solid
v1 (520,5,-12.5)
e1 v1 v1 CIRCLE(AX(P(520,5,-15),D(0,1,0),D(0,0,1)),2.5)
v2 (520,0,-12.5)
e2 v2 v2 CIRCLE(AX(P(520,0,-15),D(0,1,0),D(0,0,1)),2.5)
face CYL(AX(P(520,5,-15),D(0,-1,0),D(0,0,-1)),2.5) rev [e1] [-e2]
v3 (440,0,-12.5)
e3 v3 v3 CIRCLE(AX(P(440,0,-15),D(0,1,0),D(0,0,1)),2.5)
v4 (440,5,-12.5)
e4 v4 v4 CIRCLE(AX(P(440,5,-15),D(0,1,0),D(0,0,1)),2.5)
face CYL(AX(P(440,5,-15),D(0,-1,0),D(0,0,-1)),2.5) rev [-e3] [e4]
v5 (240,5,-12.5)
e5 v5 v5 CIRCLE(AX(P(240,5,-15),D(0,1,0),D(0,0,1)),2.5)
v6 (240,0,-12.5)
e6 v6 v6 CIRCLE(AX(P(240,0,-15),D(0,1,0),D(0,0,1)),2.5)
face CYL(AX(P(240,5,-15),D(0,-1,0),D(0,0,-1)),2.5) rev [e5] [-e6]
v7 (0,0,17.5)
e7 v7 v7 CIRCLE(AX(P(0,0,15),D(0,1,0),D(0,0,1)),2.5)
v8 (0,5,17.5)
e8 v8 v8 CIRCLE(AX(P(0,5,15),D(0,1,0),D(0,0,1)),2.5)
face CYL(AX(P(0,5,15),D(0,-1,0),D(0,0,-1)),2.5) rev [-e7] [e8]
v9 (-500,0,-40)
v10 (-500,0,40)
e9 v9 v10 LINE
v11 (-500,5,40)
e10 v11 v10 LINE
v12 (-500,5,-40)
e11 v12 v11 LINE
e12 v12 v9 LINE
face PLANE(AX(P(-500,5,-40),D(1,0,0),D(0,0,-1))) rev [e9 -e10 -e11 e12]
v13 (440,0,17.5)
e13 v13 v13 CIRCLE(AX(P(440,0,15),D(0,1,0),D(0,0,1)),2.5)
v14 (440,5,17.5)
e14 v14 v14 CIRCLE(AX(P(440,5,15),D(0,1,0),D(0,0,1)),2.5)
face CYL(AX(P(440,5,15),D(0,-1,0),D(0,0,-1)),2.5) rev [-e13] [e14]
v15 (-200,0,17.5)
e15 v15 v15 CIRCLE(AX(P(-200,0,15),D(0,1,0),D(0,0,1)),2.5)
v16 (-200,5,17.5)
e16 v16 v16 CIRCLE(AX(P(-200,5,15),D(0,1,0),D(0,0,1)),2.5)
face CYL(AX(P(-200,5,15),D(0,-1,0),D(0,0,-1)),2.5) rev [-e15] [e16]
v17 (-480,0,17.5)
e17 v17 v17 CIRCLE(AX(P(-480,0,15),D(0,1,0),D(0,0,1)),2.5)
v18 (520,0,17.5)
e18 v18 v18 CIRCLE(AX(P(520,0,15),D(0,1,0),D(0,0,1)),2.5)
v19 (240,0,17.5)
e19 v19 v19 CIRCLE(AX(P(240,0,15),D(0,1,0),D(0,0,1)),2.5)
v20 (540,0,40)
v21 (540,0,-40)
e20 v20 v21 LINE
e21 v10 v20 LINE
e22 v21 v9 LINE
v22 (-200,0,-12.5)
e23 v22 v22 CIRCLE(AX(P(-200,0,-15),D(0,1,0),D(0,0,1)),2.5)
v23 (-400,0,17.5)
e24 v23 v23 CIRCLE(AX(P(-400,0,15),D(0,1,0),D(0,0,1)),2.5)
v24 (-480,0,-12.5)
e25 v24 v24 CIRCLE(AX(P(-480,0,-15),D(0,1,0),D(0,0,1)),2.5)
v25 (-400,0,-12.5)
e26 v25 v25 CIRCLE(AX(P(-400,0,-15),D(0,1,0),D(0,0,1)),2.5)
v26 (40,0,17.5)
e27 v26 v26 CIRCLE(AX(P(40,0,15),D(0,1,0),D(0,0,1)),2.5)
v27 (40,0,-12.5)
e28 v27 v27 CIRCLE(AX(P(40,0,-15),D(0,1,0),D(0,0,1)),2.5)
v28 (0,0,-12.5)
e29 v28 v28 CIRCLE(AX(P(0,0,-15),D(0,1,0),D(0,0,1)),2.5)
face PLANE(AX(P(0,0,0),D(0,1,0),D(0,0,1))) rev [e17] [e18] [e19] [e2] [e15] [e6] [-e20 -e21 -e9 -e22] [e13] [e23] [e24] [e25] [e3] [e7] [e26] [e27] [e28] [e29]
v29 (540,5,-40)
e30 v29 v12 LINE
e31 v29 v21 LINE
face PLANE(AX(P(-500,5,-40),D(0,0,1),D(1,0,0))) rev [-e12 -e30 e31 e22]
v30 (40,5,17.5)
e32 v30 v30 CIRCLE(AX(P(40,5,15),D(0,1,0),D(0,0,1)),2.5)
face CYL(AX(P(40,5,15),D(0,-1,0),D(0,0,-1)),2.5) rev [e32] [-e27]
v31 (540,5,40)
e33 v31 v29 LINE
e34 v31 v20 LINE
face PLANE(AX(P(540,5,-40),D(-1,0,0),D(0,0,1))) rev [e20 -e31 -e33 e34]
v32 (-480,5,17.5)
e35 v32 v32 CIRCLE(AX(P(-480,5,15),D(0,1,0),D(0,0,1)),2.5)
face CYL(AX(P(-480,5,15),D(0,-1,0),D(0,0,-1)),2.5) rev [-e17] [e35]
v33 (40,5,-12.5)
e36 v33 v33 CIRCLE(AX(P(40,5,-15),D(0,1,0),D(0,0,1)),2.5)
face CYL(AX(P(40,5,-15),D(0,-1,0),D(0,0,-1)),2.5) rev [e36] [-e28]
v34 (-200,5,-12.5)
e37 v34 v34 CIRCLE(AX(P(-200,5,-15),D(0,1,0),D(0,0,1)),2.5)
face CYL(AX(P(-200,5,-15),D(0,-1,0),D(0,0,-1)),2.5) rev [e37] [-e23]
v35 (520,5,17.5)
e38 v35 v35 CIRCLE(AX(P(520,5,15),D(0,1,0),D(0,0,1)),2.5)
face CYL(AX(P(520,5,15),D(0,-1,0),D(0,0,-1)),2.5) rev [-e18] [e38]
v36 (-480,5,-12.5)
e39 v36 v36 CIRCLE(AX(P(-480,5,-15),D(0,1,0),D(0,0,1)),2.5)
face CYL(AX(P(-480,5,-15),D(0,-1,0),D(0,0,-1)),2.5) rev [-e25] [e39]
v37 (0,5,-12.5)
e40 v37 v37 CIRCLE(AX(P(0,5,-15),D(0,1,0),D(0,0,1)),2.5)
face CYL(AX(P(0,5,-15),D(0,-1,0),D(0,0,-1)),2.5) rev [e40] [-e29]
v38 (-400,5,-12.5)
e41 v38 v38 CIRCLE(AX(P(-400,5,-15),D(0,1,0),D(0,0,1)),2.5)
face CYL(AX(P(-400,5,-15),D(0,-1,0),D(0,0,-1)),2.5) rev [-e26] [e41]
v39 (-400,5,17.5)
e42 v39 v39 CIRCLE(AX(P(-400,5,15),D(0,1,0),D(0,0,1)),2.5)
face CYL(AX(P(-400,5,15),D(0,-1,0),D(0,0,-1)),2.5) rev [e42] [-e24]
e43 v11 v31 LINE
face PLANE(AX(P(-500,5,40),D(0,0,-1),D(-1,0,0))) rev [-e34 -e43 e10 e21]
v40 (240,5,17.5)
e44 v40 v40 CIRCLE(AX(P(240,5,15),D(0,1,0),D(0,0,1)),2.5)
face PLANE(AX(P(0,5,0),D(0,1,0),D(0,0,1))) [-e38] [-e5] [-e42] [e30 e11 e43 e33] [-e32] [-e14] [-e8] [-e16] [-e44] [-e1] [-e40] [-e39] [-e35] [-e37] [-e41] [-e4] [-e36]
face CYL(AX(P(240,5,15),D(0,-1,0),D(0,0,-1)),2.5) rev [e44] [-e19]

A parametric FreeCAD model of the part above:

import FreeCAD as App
import Part
import Sketcher

doc = App.newDocument("Part")
body = doc.addObject("PartDesign::Body", "Body")

# Sketch on XZ plane
sketch1 = body.newObject("Sketcher::SketchObject", "Sketch")
sketch1.AttachmentSupport = (doc.getObject("XZ_Plane"), [""])
sketch1.MapMode = "FlatFace"
sketch1.addGeometry(Part.LineSegment(App.Vector(-500, -40, 0), App.Vector(-500, 40, 0)), False)
sketch1.addGeometry(Part.LineSegment(App.Vector(-500, 40, 0), App.Vector(540, 40, 0)), False)
sketch1.addGeometry(Part.LineSegment(App.Vector(540, 40, 0), App.Vector(540, -40, 0)), False)
sketch1.addGeometry(Part.LineSegment(App.Vector(540, -40, 0), App.Vector(-500, -40, 0)), False)
sketch1.addGeometry(Part.Circle(App.Vector(-480, 15, 0), App.Vector(0, 0, 1), 2.5), False)
sketch1.addGeometry(Part.Circle(App.Vector(-400, 15, 0), App.Vector(0, 0, 1), 2.5), False)
sketch1.addGeometry(Part.Circle(App.Vector(-200, 15, 0), App.Vector(0, 0, 1), 2.5), False)
sketch1.addGeometry(Part.Circle(App.Vector(0, 15, 0), App.Vector(0, 0, 1), 2.5), False)
sketch1.addGeometry(Part.Circle(App.Vector(40, 15, 0), App.Vector(0, 0, 1), 2.5), False)
sketch1.addGeometry(Part.Circle(App.Vector(240, 15, 0), App.Vector(0, 0, 1), 2.5), False)
sketch1.addGeometry(Part.Circle(App.Vector(440, 15, 0), App.Vector(0, 0, 1), 2.5), False)
sketch1.addGeometry(Part.Circle(App.Vector(520, 15, 0), App.Vector(0, 0, 1), 2.5), False)
sketch1.addGeometry(Part.Circle(App.Vector(-480, -15, 0), App.Vector(0, 0, 1), 2.5), False)
sketch1.addGeometry(Part.Circle(App.Vector(-400, -15, 0), App.Vector(0, 0, 1), 2.5), False)
sketch1.addGeometry(Part.Circle(App.Vector(-200, -15, 0), App.Vector(0, 0, 1), 2.5), False)
sketch1.addGeometry(Part.Circle(App.Vector(0, -15, 0), App.Vector(0, 0, 1), 2.5), False)
sketch1.addGeometry(Part.Circle(App.Vector(40, -15, 0), App.Vector(0, 0, 1), 2.5), False)
sketch1.addGeometry(Part.Circle(App.Vector(240, -15, 0), App.Vector(0, 0, 1), 2.5), False)
sketch1.addGeometry(Part.Circle(App.Vector(440, -15, 0), App.Vector(0, 0, 1), 2.5), False)
sketch1.addGeometry(Part.Circle(App.Vector(520, -15, 0), App.Vector(0, 0, 1), 2.5), False)
sketch1.addConstraint(Sketcher.Constraint("Coincident", 0, 2, 1, 1))
sketch1.addConstraint(Sketcher.Constraint("Coincident", 1, 2, 2, 1))
sketch1.addConstraint(Sketcher.Constraint("Coincident", 2, 2, 3, 1))
sketch1.addConstraint(Sketcher.Constraint("Coincident", 3, 2, 0, 1))
sketch1.addConstraint(Sketcher.Constraint("Vertical", 0))
sketch1.addConstraint(Sketcher.Constraint("Horizontal", 1))
sketch1.addConstraint(Sketcher.Constraint("Vertical", 2))
sketch1.addConstraint(Sketcher.Constraint("Horizontal", 3))
sketch1.addConstraint(Sketcher.Constraint("Equal", 4, 5))
sketch1.addConstraint(Sketcher.Constraint("Equal", 5, 6))
sketch1.addConstraint(Sketcher.Constraint("Equal", 6, 7))
sketch1.addConstraint(Sketcher.Constraint("Equal", 7, 8))
sketch1.addConstraint(Sketcher.Constraint("Equal", 8, 9))
sketch1.addConstraint(Sketcher.Constraint("Equal", 9, 10))
sketch1.addConstraint(Sketcher.Constraint("Equal", 10, 11))
sketch1.addConstraint(Sketcher.Constraint("Equal", 11, 12))
sketch1.addConstraint(Sketcher.Constraint("Equal", 12, 13))
sketch1.addConstraint(Sketcher.Constraint("Equal", 13, 14))
sketch1.addConstraint(Sketcher.Constraint("Equal", 14, 15))
sketch1.addConstraint(Sketcher.Constraint("Equal", 15, 16))
sketch1.addConstraint(Sketcher.Constraint("Equal", 16, 17))
sketch1.addConstraint(Sketcher.Constraint("Equal", 17, 18))
sketch1.addConstraint(Sketcher.Constraint("Equal", 18, 19))
sketch1.addConstraint(Sketcher.Constraint("Symmetric", 7, 3, 15, 3, -1, 1))
sketch1.addConstraint(Sketcher.Constraint("Symmetric", 4, 3, 12, 3, -1))
sketch1.addConstraint(Sketcher.Constraint("Symmetric", 5, 3, 13, 3, -1))
sketch1.addConstraint(Sketcher.Constraint("Symmetric", 6, 3, 14, 3, -1))
sketch1.addConstraint(Sketcher.Constraint("Symmetric", 8, 3, 16, 3, -1))
sketch1.addConstraint(Sketcher.Constraint("Symmetric", 9, 3, 17, 3, -1))
sketch1.addConstraint(Sketcher.Constraint("Symmetric", 10, 3, 18, 3, -1))
sketch1.addConstraint(Sketcher.Constraint("Symmetric", 11, 3, 19, 3, -1))
sketch1.addConstraint(Sketcher.Constraint("PointOnObject", 7, 3, -2))
sketch1.addConstraint(Sketcher.Constraint("Horizontal", 4, 3, 5, 3))
sketch1.addConstraint(Sketcher.Constraint("Horizontal", 5, 3, 6, 3))
sketch1.addConstraint(Sketcher.Constraint("Horizontal", 6, 3, 7, 3))
sketch1.addConstraint(Sketcher.Constraint("Horizontal", 7, 3, 8, 3))
sketch1.addConstraint(Sketcher.Constraint("Horizontal", 8, 3, 9, 3))
sketch1.addConstraint(Sketcher.Constraint("Horizontal", 9, 3, 10, 3))
sketch1.addConstraint(Sketcher.Constraint("Horizontal", 10, 3, 11, 3))
sketch1.addConstraint(Sketcher.Constraint("Diameter", 4, 5.0))
sketch1.addConstraint(Sketcher.Constraint("DistanceX", 1, 1, 1, 2, 1040.0))
sketch1.addConstraint(Sketcher.Constraint("DistanceY", 0, 1, 0, 2, 80.0))
sketch1.addConstraint(Sketcher.Constraint("DistanceX", 4, 3, -1, 1, 480.0))
sketch1.addConstraint(Sketcher.Constraint("DistanceY", -1, 1, 4, 3, 15.0))
sketch1.addConstraint(Sketcher.Constraint("DistanceX", 5, 3, -1, 1, 400.0))
sketch1.addConstraint(Sketcher.Constraint("DistanceX", 6, 3, -1, 1, 200.0))
sketch1.addConstraint(Sketcher.Constraint("DistanceX", -1, 1, 8, 3, 40.0))
sketch1.addConstraint(Sketcher.Constraint("DistanceX", -1, 1, 9, 3, 240.0))
sketch1.addConstraint(Sketcher.Constraint("DistanceX", -1, 1, 10, 3, 440.0))
sketch1.addConstraint(Sketcher.Constraint("DistanceX", -1, 1, 11, 3, 520.0))
sketch1.addConstraint(Sketcher.Constraint("DistanceX", 0, 2, -1, 1, 500.0))
sketch1.addConstraint(Sketcher.Constraint("DistanceY", -1, 1, 0, 2, 40.0))
pad1 = body.newObject("PartDesign::Pad", "Pad")
pad1.Profile = sketch1
pad1.Length = 5
pad1.Reversed = True

doc.recompute()
